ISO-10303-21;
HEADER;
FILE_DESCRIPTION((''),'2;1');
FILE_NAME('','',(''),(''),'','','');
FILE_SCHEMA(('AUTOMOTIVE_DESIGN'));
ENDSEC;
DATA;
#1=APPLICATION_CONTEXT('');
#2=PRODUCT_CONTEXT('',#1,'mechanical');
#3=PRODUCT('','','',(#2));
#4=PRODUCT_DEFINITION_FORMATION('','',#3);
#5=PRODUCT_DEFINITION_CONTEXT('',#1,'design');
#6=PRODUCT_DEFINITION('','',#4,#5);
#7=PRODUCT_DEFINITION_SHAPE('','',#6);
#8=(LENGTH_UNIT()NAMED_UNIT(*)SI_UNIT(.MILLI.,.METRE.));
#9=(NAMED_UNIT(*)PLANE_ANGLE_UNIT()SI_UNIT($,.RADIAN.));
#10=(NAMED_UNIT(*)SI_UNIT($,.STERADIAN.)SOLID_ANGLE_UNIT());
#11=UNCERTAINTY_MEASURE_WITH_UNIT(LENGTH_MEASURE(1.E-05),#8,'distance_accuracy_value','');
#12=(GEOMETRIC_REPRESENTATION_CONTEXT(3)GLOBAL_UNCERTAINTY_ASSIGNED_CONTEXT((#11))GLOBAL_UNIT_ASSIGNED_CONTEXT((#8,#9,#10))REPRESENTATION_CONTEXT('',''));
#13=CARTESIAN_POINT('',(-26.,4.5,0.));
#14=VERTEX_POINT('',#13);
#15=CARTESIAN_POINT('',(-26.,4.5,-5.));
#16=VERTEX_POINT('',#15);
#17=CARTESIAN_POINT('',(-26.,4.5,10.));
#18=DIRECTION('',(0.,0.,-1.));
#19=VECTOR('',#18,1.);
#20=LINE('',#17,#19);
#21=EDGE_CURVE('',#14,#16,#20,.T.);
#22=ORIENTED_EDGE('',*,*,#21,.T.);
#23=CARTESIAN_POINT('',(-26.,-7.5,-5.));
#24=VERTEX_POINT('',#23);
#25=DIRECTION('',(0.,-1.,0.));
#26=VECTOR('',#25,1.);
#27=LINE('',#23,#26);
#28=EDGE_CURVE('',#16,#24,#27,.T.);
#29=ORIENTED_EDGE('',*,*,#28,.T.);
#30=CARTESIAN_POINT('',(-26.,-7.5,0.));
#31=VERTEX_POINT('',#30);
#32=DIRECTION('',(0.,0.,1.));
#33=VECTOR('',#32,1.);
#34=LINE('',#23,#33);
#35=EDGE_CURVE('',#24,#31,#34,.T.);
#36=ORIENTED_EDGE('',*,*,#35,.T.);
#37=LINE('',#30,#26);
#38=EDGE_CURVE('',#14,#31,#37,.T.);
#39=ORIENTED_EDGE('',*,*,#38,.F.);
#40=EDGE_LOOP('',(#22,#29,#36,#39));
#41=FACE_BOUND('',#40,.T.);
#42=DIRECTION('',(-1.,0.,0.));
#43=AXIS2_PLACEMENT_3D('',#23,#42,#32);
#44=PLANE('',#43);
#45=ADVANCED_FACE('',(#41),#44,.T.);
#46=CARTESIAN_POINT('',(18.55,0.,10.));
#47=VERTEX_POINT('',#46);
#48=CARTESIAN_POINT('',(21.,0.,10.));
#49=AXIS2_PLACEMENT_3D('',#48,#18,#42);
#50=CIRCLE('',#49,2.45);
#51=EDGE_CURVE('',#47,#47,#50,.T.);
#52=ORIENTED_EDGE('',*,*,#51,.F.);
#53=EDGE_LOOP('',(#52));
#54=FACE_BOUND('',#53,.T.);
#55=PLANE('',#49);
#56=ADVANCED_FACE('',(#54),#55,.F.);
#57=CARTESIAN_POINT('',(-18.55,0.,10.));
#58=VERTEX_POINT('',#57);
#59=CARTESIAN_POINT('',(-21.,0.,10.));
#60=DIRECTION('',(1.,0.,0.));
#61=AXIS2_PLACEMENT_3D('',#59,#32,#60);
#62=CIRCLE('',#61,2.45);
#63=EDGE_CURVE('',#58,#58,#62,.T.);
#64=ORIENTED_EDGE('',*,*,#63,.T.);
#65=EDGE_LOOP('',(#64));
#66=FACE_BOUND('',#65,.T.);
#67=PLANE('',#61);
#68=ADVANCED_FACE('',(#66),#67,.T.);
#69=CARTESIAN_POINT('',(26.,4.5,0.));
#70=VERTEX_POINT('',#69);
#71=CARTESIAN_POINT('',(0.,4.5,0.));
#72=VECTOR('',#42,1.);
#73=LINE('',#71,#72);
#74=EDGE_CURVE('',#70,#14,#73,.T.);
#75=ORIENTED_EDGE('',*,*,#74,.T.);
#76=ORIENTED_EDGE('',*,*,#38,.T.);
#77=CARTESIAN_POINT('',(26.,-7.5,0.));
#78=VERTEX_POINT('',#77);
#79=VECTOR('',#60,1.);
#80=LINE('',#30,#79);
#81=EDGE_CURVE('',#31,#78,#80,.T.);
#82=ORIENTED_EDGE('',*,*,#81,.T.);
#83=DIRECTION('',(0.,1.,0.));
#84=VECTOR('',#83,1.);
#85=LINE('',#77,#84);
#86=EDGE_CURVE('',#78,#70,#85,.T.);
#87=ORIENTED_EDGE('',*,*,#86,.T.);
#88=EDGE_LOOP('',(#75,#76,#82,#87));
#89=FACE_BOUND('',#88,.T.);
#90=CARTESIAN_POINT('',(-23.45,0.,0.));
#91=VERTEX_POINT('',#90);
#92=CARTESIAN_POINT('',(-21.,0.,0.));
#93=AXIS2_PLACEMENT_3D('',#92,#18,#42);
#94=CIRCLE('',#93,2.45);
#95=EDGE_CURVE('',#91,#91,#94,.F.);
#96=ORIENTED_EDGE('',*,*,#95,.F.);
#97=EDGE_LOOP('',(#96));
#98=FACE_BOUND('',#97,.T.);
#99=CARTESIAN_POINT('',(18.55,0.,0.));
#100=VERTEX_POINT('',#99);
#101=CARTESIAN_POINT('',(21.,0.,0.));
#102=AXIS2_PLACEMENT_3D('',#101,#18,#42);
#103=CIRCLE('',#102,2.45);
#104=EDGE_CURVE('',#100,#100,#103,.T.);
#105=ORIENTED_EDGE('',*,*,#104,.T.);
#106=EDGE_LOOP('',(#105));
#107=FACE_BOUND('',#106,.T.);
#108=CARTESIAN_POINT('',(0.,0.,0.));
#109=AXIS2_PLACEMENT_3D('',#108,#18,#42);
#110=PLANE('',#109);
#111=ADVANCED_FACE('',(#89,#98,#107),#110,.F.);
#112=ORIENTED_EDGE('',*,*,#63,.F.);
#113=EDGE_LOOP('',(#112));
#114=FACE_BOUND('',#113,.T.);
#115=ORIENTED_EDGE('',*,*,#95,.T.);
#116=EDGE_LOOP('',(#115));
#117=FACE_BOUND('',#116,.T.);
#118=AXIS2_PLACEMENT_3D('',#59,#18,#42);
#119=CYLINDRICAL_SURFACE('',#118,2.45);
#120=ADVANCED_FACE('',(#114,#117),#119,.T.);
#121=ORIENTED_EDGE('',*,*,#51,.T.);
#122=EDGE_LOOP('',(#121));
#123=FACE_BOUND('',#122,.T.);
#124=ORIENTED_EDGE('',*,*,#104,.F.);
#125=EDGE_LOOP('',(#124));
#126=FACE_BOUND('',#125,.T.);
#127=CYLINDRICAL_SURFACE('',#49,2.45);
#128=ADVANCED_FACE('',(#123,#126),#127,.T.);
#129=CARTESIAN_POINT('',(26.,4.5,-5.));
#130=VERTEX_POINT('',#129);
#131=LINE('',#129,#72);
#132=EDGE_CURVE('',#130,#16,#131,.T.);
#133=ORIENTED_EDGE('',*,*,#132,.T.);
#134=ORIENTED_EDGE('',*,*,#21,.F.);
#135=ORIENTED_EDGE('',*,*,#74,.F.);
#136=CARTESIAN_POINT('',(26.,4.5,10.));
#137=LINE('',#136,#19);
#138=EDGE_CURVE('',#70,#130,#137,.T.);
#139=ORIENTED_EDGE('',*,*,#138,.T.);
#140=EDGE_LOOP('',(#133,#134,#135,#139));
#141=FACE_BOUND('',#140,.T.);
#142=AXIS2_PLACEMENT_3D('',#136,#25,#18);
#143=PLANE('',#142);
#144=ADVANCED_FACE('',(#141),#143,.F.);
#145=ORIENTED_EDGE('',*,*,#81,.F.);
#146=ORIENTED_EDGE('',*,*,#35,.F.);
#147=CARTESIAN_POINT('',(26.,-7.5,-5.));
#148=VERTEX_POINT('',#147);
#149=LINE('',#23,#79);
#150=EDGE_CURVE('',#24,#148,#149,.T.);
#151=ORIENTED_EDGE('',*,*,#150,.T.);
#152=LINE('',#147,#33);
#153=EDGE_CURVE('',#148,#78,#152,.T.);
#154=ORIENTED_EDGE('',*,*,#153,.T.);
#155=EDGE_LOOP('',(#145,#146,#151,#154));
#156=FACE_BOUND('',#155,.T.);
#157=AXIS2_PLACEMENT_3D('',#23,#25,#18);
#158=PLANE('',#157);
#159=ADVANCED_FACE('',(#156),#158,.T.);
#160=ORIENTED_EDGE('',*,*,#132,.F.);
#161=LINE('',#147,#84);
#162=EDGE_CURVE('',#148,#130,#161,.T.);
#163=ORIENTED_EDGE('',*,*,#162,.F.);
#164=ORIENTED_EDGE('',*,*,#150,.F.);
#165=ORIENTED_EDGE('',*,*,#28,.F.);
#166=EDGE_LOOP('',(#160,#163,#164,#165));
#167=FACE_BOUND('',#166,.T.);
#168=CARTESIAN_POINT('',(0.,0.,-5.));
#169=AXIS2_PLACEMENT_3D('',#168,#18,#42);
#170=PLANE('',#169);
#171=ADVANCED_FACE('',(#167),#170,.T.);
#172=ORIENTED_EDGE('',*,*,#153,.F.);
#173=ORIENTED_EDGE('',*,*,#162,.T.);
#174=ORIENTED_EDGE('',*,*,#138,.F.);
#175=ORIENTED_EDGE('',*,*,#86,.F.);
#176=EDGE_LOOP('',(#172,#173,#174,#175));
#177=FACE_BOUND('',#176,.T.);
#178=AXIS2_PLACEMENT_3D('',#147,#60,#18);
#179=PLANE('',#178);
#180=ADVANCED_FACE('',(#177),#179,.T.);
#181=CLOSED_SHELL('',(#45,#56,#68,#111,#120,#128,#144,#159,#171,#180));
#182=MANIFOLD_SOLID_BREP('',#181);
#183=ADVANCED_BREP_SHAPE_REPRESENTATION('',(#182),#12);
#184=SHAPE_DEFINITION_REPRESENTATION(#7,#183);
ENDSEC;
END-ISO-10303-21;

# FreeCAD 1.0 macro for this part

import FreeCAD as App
import Part
import Sketcher
Q = App.Units.Quantity

doc = App.newDocument("Part")
body = doc.addObject("PartDesign::Body", "Body")

# Sketch on XY plane
sketch1 = body.newObject("Sketcher::SketchObject", "Sketch")
sketch1.AttachmentSupport = (doc.getObject("XY_Plane"), [""])
sketch1.MapMode = "FlatFace"
sketch1.addGeometry(Part.Circle(App.Vector(-21, 0, 0), App.Vector(0, 0, 1), 2.5), False)
sketch1.addConstraint([
    Sketcher.Constraint("PointOnObject", 0, 3, -1),
    Sketcher.Constraint("Diameter", 0, Q("4.9 mm")),
    Sketcher.Constraint("DistanceX", 0, 3, -1, 1, Q("21 mm")),
])
pad1 = body.newObject("PartDesign::Pad", "Pad")
pad1.Profile = sketch1
pad1.Length = 10
body2 = doc.addObject("PartDesign::Body", "Body001")

# Sketch on XY plane
sketch2 = body2.newObject("Sketcher::SketchObject", "Sketch001")
sketch2.AttachmentSupport = (doc.getObject("XY_Plane001"), [""])
sketch2.MapMode = "FlatFace"
sketch2.addGeometry(Part.Circle(App.Vector(21, 0, 0), App.Vector(0, 0, 1), 2.5), False)
sketch2.addConstraint([
    Sketcher.Constraint("PointOnObject", 0, 3, -1),
    Sketcher.Constraint("Diameter", 0, Q("4.9 mm")),
    Sketcher.Constraint("DistanceX", -1, 1, 0, 3, Q("21 mm")),
])
pad2 = body2.newObject("PartDesign::Pad", "Pad001")
pad2.Profile = sketch2
pad2.Length = 10
body.AllowCompound = True
doc.recompute()

boolean = body.newObject("PartDesign::Boolean", "Boolean")
boolean.Type = "Fuse"
boolean.addObjects([body2])

# Sketch on XY plane
sketch3 = body.newObject("Sketcher::SketchObject", "Sketch002")
sketch3.AttachmentSupport = (doc.getObject("XY_Plane"), [""])
sketch3.MapMode = "FlatFace"
sketch3.addGeometry([
    Part.LineSegment(App.Vector(-26, 8, 0), App.Vector(-26, -8, 0)),
    Part.LineSegment(App.Vector(-26, -8, 0), App.Vector(26, -8, 0)),
    Part.LineSegment(App.Vector(26, -8, 0), App.Vector(26, 8, 0)),
    Part.LineSegment(App.Vector(26, 8, 0), App.Vector(-26, 8, 0)),
], False)
sketch3.addConstraint([
    Sketcher.Constraint("Coincident", 0, 2, 1, 1),
    Sketcher.Constraint("Coincident", 1, 2, 2, 1),
    Sketcher.Constraint("Coincident", 2, 2, 3, 1),
    Sketcher.Constraint("Coincident", 3, 2, 0, 1),
    Sketcher.Constraint("Vertical", 0),
    Sketcher.Constraint("Horizontal", 1),
    Sketcher.Constraint("Vertical", 2),
    Sketcher.Constraint("Horizontal", 3),
    Sketcher.Constraint("Symmetric", 0, 2, 2, 2, -1, 1),
    Sketcher.Constraint("DistanceX", 1, 1, 1, 2, Q("52 mm")),
    Sketcher.Constraint("DistanceY", 0, 2, 0, 1, Q("15 mm")),
])
pad3 = body.newObject("PartDesign::Pad", "Pad002")
pad3.Profile = sketch3
pad3.Length = 5
pad3.Reversed = True

# Sketch on XY plane
sketch4 = body.newObject("Sketcher::SketchObject", "Sketch003")
sketch4.AttachmentSupport = (doc.getObject("XY_Plane"), [""])
sketch4.MapMode = "FlatFace"
sketch4.AttachmentOffset = App.Placement(App.Vector(0, 0, -5), App.Rotation())
sketch4.addGeometry([
    Part.LineSegment(App.Vector(26, 7.5, 0), App.Vector(26, 4.5, 0)),
    Part.LineSegment(App.Vector(26, 4.5, 0), App.Vector(-26, 4.5, 0)),
    Part.LineSegment(App.Vector(-26, 4.5, 0), App.Vector(-26, 7.5, 0)),
    Part.LineSegment(App.Vector(-26, 7.5, 0), App.Vector(26, 7.5, 0)),
], False)
sketch4.addConstraint([
    Sketcher.Constraint("Coincident", 0, 2, 1, 1),
    Sketcher.Constraint("Coincident", 1, 2, 2, 1),
    Sketcher.Constraint("Coincident", 2, 2, 3, 1),
    Sketcher.Constraint("Coincident", 3, 2, 0, 1),
    Sketcher.Constraint("Vertical", 0),
    Sketcher.Constraint("Horizontal", 1),
    Sketcher.Constraint("Vertical", 2),
    Sketcher.Constraint("Horizontal", 3),
    Sketcher.Constraint("DistanceX", 1, 2, 1, 1, Q("52 mm")),
    Sketcher.Constraint("DistanceY", 0, 2, 0, 1, Q("3 mm")),
    Sketcher.Constraint("DistanceX", -1, 1, 0, 2, Q("26 mm")),
    Sketcher.Constraint("DistanceY", -1, 1, 0, 2, Q("4.5 mm")),
])
pocket1 = body.newObject("PartDesign::Pocket", "Pocket")
pocket1.Profile = sketch4
pocket1.Type = "ThroughAll"
pocket1.Reversed = True

doc.recompute()
